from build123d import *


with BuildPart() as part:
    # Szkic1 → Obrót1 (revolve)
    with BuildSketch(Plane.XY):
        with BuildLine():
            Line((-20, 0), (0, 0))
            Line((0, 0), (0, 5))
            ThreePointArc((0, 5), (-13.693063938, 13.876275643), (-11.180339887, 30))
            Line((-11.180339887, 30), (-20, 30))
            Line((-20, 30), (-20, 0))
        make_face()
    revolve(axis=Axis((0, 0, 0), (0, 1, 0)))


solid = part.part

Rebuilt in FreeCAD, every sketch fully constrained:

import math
import FreeCAD as App
import Part
import Sketcher
from FreeCAD import Vector

doc = App.newDocument("Part")
body = doc.addObject("PartDesign::Body", "Body")

# Sketch on XY plane
sketch1 = body.newObject("Sketcher::SketchObject", "Sketch")
sketch1.AttachmentSupport = (doc.getObject("XY_Plane"), [""])
sketch1.MapMode = "FlatFace"
sketch1.addGeometry(Part.LineSegment(Vector(-20, 0, 0), Vector(0, 0, 0)), False)
sketch1.addGeometry(Part.LineSegment(Vector(0, 0, 0), Vector(0, 5, 0)), False)
sketch1.addGeometry(Part.ArcOfCircle(Part.Circle(Vector(0, 20, 0), Vector(0, 0, 1), 15), math.radians(138), math.radians(270)), False)
sketch1.addGeometry(Part.LineSegment(Vector(-11, 30, 0), Vector(-20, 30, 0)), False)
sketch1.addGeometry(Part.LineSegment(Vector(-20, 30, 0), Vector(-20, 0, 0)), False)
sketch1.addConstraint(Sketcher.Constraint("Coincident", 0, 2, 1, 1))
sketch1.addConstraint(Sketcher.Constraint("Coincident", 1, 2, 2, 2))
sketch1.addConstraint(Sketcher.Constraint("Coincident", 2, 1, 3, 1))
sketch1.addConstraint(Sketcher.Constraint("Coincident", 3, 2, 4, 1))
sketch1.addConstraint(Sketcher.Constraint("Coincident", 4, 2, 0, 1))
sketch1.addConstraint(Sketcher.Constraint("Horizontal", 0))
sketch1.addConstraint(Sketcher.Constraint("Vertical", 1))
sketch1.addConstraint(Sketcher.Constraint("Horizontal", 3))
sketch1.addConstraint(Sketcher.Constraint("Vertical", 4))
sketch1.addConstraint(Sketcher.Constraint("Coincident", 0, 2, -1, 1))
sketch1.addConstraint(Sketcher.Constraint("PointOnObject", 2, 3, -2))
sketch1.addConstraint(Sketcher.Constraint("Radius", 2, 15.0))
sketch1.addConstraint(Sketcher.Constraint("DistanceX", 0, 1, 0, 2, 20.0))
sketch1.addConstraint(Sketcher.Constraint("DistanceY", 1, 1, 1, 2, 5.0))
sketch1.addConstraint(Sketcher.Constraint("DistanceY", 4, 2, 4, 1, 30.0))
revolution = body.newObject("PartDesign::Revolution", "Revolution")
revolution.Profile = sketch1
revolution.ReferenceAxis = (sketch1, ["V_Axis"])
revolution.Angle = 360

doc.recompute()
